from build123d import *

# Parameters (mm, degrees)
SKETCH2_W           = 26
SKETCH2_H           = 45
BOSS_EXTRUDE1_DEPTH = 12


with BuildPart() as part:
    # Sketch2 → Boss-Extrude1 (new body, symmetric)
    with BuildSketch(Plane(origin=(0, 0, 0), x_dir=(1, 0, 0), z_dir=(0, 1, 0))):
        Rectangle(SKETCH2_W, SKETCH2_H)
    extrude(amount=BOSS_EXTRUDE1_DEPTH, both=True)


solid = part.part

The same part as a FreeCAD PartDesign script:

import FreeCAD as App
import Part
import Sketcher
from FreeCAD import Vector

doc = App.newDocument("Part")
body = doc.addObject("PartDesign::Body", "Body")

sketch1 = doc.addObject("Sketcher::SketchObject", "Sketch")
body.addObject(sketch1)
sketch1.AttachmentSupport = (doc.XZ_Plane, [""])
sketch1.MapMode = "FlatFace"
sketch1.addGeometry([
    Part.LineSegment(Vector(-13, -22, 0), Vector(-13, 22, 0)),
    Part.LineSegment(Vector(-13, 22, 0), Vector(13, 22, 0)),
    Part.LineSegment(Vector(13, 22, 0), Vector(13, -22, 0)),
    Part.LineSegment(Vector(13, -22, 0), Vector(-13, -22, 0)),
], False)
sketch1.addConstraint([
    Sketcher.Constraint("Coincident", 0, 2, 1, 1),
    Sketcher.Constraint("Coincident", 1, 2, 2, 1),
    Sketcher.Constraint("Coincident", 2, 2, 3, 1),
    Sketcher.Constraint("Coincident", 3, 2, 0, 1),
    Sketcher.Constraint("Vertical", 0),
    Sketcher.Constraint("Horizontal", 1),
    Sketcher.Constraint("Vertical", 2),
    Sketcher.Constraint("Horizontal", 3),
    Sketcher.Constraint("Symmetric", 0, 2, 2, 2, -1, 1),
    Sketcher.Constraint("DistanceX", 1, 1, 1, 2, 26.0),
    Sketcher.Constraint("DistanceY", 0, 1, 0, 2, 45.0),
])
pad1 = doc.addObject("PartDesign::Pad", "Pad")
body.addObject(pad1)
pad1.Profile = sketch1
pad1.Length = 24
pad1.Midplane = True

doc.recompute()
